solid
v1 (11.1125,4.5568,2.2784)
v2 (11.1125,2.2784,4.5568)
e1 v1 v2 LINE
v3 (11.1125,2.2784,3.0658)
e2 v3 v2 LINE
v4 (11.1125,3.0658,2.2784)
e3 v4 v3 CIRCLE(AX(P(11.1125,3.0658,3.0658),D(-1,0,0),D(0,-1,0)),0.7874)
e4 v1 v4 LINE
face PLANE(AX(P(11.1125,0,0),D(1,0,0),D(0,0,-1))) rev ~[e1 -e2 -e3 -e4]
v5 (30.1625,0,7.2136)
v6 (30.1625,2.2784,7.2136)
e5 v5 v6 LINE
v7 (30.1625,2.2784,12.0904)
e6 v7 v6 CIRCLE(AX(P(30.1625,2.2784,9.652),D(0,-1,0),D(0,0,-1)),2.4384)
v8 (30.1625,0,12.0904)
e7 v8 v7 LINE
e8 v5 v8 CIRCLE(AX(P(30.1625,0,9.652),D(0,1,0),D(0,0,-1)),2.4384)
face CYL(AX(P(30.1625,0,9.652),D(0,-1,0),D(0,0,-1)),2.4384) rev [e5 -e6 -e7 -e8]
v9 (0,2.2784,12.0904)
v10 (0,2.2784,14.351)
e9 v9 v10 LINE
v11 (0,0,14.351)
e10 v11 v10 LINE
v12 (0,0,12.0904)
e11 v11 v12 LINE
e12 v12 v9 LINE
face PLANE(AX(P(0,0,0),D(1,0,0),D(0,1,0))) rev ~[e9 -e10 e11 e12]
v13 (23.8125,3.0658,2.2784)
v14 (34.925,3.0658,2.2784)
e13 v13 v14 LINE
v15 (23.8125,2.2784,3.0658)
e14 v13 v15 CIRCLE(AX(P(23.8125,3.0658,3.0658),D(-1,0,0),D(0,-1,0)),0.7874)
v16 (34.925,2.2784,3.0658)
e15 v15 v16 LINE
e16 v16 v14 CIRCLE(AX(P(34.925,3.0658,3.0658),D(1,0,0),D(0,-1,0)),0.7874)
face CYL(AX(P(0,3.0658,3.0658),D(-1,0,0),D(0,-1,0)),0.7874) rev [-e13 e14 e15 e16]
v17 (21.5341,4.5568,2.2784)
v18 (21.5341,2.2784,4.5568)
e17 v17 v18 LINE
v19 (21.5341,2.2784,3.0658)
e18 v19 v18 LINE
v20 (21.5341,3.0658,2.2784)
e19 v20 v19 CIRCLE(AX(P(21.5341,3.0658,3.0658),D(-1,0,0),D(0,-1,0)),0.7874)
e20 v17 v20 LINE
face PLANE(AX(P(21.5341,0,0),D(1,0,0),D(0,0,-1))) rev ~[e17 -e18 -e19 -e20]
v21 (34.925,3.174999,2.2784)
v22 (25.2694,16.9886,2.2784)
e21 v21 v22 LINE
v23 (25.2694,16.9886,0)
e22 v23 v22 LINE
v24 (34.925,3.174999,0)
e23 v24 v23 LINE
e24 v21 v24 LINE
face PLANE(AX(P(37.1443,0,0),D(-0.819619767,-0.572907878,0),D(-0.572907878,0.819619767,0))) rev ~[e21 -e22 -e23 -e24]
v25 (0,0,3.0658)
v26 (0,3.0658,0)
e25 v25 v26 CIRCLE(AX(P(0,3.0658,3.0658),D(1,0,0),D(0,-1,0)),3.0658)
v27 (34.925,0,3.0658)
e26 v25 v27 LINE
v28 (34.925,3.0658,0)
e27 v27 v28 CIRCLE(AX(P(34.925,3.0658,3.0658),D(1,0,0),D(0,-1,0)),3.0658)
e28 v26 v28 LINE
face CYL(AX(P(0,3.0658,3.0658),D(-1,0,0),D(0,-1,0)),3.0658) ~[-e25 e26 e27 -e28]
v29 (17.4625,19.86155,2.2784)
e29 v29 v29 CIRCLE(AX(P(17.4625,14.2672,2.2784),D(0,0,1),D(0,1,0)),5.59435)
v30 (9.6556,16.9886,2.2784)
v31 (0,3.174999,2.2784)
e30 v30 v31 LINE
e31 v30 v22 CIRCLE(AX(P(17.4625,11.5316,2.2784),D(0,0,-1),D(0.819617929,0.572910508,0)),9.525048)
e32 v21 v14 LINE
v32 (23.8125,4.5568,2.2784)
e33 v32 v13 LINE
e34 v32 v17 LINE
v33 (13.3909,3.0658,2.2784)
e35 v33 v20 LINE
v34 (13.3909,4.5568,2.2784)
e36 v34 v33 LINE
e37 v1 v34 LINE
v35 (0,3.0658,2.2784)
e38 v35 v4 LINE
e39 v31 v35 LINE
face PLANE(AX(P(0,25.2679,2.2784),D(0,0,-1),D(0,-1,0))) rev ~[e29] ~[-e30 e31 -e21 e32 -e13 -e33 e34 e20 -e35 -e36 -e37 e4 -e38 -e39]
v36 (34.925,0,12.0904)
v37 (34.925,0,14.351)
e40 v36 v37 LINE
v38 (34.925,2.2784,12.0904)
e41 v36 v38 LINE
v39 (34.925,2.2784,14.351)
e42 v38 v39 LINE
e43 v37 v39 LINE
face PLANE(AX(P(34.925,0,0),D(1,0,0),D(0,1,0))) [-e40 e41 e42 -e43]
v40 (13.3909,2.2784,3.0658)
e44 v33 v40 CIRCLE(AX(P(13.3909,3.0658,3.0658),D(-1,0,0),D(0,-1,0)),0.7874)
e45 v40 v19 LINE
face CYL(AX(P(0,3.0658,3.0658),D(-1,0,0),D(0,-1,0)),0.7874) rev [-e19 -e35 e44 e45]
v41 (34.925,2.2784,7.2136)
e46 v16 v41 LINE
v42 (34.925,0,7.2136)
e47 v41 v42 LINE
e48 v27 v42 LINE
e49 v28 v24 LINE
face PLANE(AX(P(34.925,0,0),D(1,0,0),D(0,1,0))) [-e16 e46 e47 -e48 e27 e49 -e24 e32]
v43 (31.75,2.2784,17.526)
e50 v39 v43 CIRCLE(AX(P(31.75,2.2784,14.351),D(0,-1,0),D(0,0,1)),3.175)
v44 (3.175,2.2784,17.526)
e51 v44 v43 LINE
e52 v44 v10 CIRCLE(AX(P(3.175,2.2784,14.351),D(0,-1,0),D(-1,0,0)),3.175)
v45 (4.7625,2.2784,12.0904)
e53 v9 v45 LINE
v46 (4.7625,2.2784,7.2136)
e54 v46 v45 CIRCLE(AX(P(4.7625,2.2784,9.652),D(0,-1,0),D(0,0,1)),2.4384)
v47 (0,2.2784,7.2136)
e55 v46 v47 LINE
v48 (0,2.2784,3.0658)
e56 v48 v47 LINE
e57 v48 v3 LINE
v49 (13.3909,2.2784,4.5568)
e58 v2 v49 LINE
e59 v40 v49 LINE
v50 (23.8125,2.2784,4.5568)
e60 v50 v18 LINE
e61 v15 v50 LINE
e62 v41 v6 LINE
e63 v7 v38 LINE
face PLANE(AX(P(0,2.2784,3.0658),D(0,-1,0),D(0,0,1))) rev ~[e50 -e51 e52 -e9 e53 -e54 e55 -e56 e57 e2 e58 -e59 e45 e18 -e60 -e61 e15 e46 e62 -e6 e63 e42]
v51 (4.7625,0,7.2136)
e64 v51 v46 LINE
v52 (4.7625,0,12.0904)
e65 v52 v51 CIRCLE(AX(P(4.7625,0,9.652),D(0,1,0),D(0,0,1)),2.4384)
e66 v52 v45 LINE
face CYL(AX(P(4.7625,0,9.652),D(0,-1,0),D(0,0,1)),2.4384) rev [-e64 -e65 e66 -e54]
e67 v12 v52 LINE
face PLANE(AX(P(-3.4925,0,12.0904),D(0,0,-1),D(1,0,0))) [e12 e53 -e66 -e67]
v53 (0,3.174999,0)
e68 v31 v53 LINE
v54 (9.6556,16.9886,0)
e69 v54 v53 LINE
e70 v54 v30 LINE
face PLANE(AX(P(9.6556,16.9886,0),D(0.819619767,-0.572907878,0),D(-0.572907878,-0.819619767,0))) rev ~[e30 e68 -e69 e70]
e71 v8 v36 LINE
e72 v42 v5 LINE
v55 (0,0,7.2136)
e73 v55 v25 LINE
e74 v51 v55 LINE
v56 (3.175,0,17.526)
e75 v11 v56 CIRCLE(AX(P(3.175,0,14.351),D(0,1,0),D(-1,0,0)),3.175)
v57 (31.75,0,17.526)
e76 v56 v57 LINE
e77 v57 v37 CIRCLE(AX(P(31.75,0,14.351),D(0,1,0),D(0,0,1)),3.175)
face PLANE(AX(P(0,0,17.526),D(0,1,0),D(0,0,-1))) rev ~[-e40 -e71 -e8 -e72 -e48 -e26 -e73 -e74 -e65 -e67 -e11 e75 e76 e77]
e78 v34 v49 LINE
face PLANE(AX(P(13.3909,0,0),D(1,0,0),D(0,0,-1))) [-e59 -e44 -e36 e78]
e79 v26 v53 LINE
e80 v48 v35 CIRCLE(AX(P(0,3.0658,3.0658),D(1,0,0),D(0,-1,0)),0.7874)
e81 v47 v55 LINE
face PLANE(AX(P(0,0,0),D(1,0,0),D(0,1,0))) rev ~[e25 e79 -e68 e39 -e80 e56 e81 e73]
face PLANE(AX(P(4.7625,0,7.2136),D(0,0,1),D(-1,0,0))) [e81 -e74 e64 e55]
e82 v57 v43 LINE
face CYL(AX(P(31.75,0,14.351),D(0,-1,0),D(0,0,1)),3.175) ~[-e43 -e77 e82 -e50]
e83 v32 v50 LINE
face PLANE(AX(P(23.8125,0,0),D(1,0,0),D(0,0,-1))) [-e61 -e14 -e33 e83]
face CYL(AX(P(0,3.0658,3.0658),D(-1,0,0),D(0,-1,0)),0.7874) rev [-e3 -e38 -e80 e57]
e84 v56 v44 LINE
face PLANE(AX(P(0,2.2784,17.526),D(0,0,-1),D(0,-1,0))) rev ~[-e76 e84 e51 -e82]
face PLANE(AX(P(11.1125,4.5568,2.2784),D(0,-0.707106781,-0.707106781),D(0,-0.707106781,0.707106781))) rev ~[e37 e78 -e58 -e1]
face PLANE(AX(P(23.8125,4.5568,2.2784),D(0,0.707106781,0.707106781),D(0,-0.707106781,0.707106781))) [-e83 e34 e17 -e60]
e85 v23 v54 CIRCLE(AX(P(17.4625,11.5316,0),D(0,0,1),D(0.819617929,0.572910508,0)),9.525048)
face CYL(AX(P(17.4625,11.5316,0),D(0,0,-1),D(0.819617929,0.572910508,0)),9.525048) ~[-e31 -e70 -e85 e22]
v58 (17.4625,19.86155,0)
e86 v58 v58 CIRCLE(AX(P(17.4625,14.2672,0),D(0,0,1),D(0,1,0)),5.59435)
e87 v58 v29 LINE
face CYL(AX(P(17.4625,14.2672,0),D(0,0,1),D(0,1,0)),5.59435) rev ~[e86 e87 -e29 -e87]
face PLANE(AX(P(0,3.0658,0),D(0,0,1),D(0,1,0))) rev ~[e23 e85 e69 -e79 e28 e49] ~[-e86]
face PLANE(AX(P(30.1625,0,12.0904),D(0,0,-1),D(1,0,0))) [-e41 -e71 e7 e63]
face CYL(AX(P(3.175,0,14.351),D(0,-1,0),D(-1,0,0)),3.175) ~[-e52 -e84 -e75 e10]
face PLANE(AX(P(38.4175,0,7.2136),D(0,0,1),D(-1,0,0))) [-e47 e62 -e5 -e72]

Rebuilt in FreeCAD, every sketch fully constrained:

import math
import FreeCAD as App
import Part
import Sketcher

V = App.Vector
Q = App.Units.Quantity

doc = App.newDocument("Part")
body = doc.addObject("PartDesign::Body", "Body")

# Sketch on YZ plane
sketch1 = body.newObject("Sketcher::SketchObject", "Sketch")
sketch1.AttachmentSupport = (doc.getObject("YZ_Plane"), [""])
sketch1.MapMode = "FlatFace"
sketch1.addGeometry([
    Part.LineSegment(V(2.2784, 17.526, 0), V(0, 17.526, 0)),  # 0
    Part.LineSegment(V(0, 17.526, 0), V(0, 3.0658, 0)),  # 1
    Part.ArcOfCircle(Part.Circle(V(3.0658, 3.0658, 0), V(0, 0, 1), 3.0658), math.radians(180), math.radians(270)),  # 2
    Part.LineSegment(V(3.0658, 0, 0), V(25.2679, 0, 0)),  # 3
    Part.LineSegment(V(25.2679, 0, 0), V(25.2679, 2.2784, 0)),  # 4
    Part.LineSegment(V(25.2679, 2.2784, 0), V(3.0658, 2.2784, 0)),  # 5
    Part.ArcOfCircle(Part.Circle(V(3.0658, 3.0658, 0), V(0, 0, 1), 0.7874), math.radians(180), math.radians(270)),  # 6
    Part.LineSegment(V(2.2784, 3.0658, 0), V(2.2784, 17.526, 0)),  # 7
], False)
sketch1.addConstraint([
    Sketcher.Constraint("Coincident", 0, 2, 1, 1),
    Sketcher.Constraint("Tangent", 1, 2, 2, 1),
    Sketcher.Constraint("Tangent", 2, 2, 3, 1),
    Sketcher.Constraint("Coincident", 3, 2, 4, 1),
    Sketcher.Constraint("Coincident", 4, 2, 5, 1),
    Sketcher.Constraint("Tangent", 5, 2, 6, 2),
    Sketcher.Constraint("Tangent", 6, 1, 7, 1),
    Sketcher.Constraint("Coincident", 7, 2, 0, 1),
    Sketcher.Constraint("Horizontal", 0),
    Sketcher.Constraint("Vertical", 1),
    Sketcher.Constraint("Horizontal", 3),
    Sketcher.Constraint("Vertical", 4),
    Sketcher.Constraint("Horizontal", 5),
    Sketcher.Constraint("Vertical", 7),
    Sketcher.Constraint("Coincident", 6, 3, 2, 3),
    Sketcher.Constraint("PointOnObject", 0, 2, -2),
    Sketcher.Constraint("PointOnObject", 2, 2, -1),
    Sketcher.Constraint("Radius", 6, Q("0.031 in")),
    Sketcher.Constraint("Radius", 2, Q("0.1207 in")),
    Sketcher.Constraint("DistanceY", -1, 1, 0, 2, Q("0.69 in")),
    Sketcher.Constraint("DistanceX", 3, 1, 3, 2, Q("0.8741 in")),
])
pad1 = body.newObject("PartDesign::Pad", "Pad")
pad1.Profile = sketch1
pad1.Length = Q("1.375 in")

# Sketch on XY plane
sketch2 = body.newObject("Sketcher::SketchObject", "Sketch001")
sketch2.AttachmentSupport = (doc.getObject("XY_Plane"), [""])
sketch2.MapMode = "FlatFace"
sketch2.addGeometry([
    Part.LineSegment(V(-6.985, 33.6906, 0), V(-6.985, -2.1057, 0)),  # 0
    Part.LineSegment(V(-6.985, -2.1057, 0), V(41.91, -2.1057, 0)),  # 1
    Part.LineSegment(V(41.91, -2.1057, 0), V(41.91, 33.6906, 0)),  # 2
    Part.LineSegment(V(41.91, 33.6906, 0), V(-6.985, 33.6906, 0)),  # 3
    Part.LineSegment(V(37.1443, 0, 0), V(-2.2193, 0, 0)),  # 4
    Part.LineSegment(V(-2.2193, 0, 0), V(9.6556, 16.9886, 0)),  # 5
    Part.ArcOfCircle(Part.Circle(V(17.4625, 11.5316, 0), V(0, 0, 1), 9.525048), math.radians(34.953435), math.radians(145.046565)),  # 6
    Part.LineSegment(V(25.2694, 16.9886, 0), V(37.1443, 0, 0)),  # 7
], False)
sketch2.addConstraint([
    Sketcher.Constraint("Coincident", 0, 2, 1, 1),
    Sketcher.Constraint("Coincident", 1, 2, 2, 1),
    Sketcher.Constraint("Coincident", 2, 2, 3, 1),
    Sketcher.Constraint("Coincident", 3, 2, 0, 1),
    Sketcher.Constraint("Coincident", 4, 2, 5, 1),
    Sketcher.Constraint("Tangent", 5, 2, 6, 2),
    Sketcher.Constraint("Tangent", 6, 1, 7, 1),
    Sketcher.Constraint("Coincident", 7, 2, 4, 1),
    Sketcher.Constraint("Vertical", 0),
    Sketcher.Constraint("Horizontal", 1),
    Sketcher.Constraint("Vertical", 2),
    Sketcher.Constraint("Horizontal", 3),
    Sketcher.Constraint("Horizontal", 4),
    Sketcher.Constraint("PointOnObject", 4, 2, -1),
    Sketcher.Constraint("Horizontal", 5, 2, 6, 1),
    Sketcher.Constraint("Radius", 6, Q("0.375 in")),
    Sketcher.Constraint("DistanceX", 1, 1, 1, 2, Q("1.925 in")),
    Sketcher.Constraint("DistanceX", -1, 1, 1, 2, Q("1.65 in")),
    Sketcher.Constraint("DistanceY", 0, 2, 0, 1, Q("1.4093 in")),
    Sketcher.Constraint("DistanceX", -1, 1, 6, 3, Q("0.6875 in")),
    Sketcher.Constraint("DistanceY", -1, 1, 6, 3, Q("0.454 in")),
    Sketcher.Constraint("DistanceX", 4, 2, 4, 1, Q("39.3636 mm")),
    Sketcher.Constraint("DistanceY", 0, 2, -1, 1, Q("0.0829 in")),
])
pocket1 = body.newObject("PartDesign::Pocket", "Pocket")
pocket1.Profile = sketch2
pocket1.Length = 3.4176
pocket1.Reversed = True

# Sketch on XY plane
sketch3 = body.newObject("Sketcher::SketchObject", "Sketch002")
sketch3.AttachmentSupport = (doc.getObject("XY_Plane"), [""])
sketch3.MapMode = "FlatFace"
sketch3.addGeometry(Part.Circle(V(17.4625, 14.2672, 0), V(0, 0, 1), 5.59435), False)
sketch3.addConstraint([
    Sketcher.Constraint("Diameter", 0, Q("0.4405 in")),
    Sketcher.Constraint("DistanceX", -1, 1, 0, 3, Q("0.6875 in")),
    Sketcher.Constraint("DistanceY", -1, 1, 0, 3, Q("0.5617 in")),
])
doc.recompute()
hole = body.newObject("PartDesign::Hole", "Hole")
hole.Profile = sketch3
hole.ThreadType = "None"
hole.Diameter = Q("0.4405 in")
hole.DepthType = "Dimension"
hole.Depth = 3.4176
hole.DrillPoint = "Flat"
hole.Reversed = True

# Sketch on XZ plane
sketch4 = body.newObject("Sketcher::SketchObject", "Sketch003")
sketch4.AttachmentSupport = (doc.getObject("XZ_Plane"), [""])
sketch4.MapMode = "FlatFace"
sketch4.addGeometry([
    Part.LineSegment(V(0, 14.351, 0), V(-17.4625, 14.351, 0)),  # 0
    Part.LineSegment(V(-17.4625, 14.351, 0), V(-17.4625, 22.352, 0)),  # 1
    Part.LineSegment(V(-17.4625, 22.352, 0), V(3.175, 22.352, 0)),  # 2
    Part.LineSegment(V(3.175, 22.352, 0), V(3.175, 17.526, 0)),  # 3
    Part.ArcOfCircle(Part.Circle(V(3.175, 14.351, 0), V(0, 0, 1), 3.175), math.radians(90), math.radians(180)),  # 4
], False)
sketch4.addConstraint([
    Sketcher.Constraint("Coincident", 0, 2, 1, 1),
    Sketcher.Constraint("Coincident", 1, 2, 2, 1),
    Sketcher.Constraint("Coincident", 2, 2, 3, 1),
    Sketcher.Constraint("Coincident", 3, 2, 4, 1),
    Sketcher.Constraint("Coincident", 4, 2, 0, 1),
    Sketcher.Constraint("Horizontal", 0),
    Sketcher.Constraint("Vertical", 1),
    Sketcher.Constraint("Horizontal", 2),
    Sketcher.Constraint("Vertical", 3),
    Sketcher.Constraint("PointOnObject", 4, 2, -2),
    Sketcher.Constraint("Horizontal", 4, 3, 0, 2),
    Sketcher.Constraint("Vertical", 4, 3, 2, 2),
    Sketcher.Constraint("Radius", 4, Q("0.125 in")),
    Sketcher.Constraint("DistanceY", 3, 2, 3, 1, Q("0.19 in")),
    Sketcher.Constraint("DistanceX", 0, 2, 0, 1, Q("0.6875 in")),
    Sketcher.Constraint("DistanceY", -1, 1, 1, 2, Q("0.88 in")),
])
pocket2 = body.newObject("PartDesign::Pocket", "Pocket001")
pocket2.Profile = sketch4
pocket2.Length = 3.4176

# Sketch on XZ plane
sketch5 = body.newObject("Sketcher::SketchObject", "Sketch004")
sketch5.AttachmentSupport = (doc.getObject("XZ_Plane"), [""])
sketch5.MapMode = "FlatFace"
sketch5.addGeometry([
    Part.LineSegment(V(31.75, 17.526, 0), V(31.75, 22.352, 0)),  # 0
    Part.LineSegment(V(31.75, 22.352, 0), V(52.3875, 22.352, 0)),  # 1
    Part.LineSegment(V(52.3875, 22.352, 0), V(52.3875, 14.351, 0)),  # 2
    Part.LineSegment(V(52.3875, 14.351, 0), V(34.925, 14.351, 0)),  # 3
    Part.ArcOfCircle(Part.Circle(V(31.75, 14.351, 0), V(0, 0, 1), 3.175), math.radians(0), math.radians(90)),  # 4
], False)
sketch5.addConstraint([
    Sketcher.Constraint("Coincident", 0, 2, 1, 1),
    Sketcher.Constraint("Coincident", 1, 2, 2, 1),
    Sketcher.Constraint("Coincident", 2, 2, 3, 1),
    Sketcher.Constraint("Coincident", 3, 2, 4, 1),
    Sketcher.Constraint("Coincident", 4, 2, 0, 1),
    Sketcher.Constraint("Vertical", 0),
    Sketcher.Constraint("Horizontal", 1),
    Sketcher.Constraint("Vertical", 2),
    Sketcher.Constraint("Horizontal", 3),
    Sketcher.Constraint("Horizontal", 4, 3, 2, 2),
    Sketcher.Constraint("Vertical", 4, 3, 0, 2),
    Sketcher.Constraint("Radius", 4, Q("0.125 in")),
    Sketcher.Constraint("DistanceY", 0, 1, 0, 2, Q("0.19 in")),
    Sketcher.Constraint("DistanceX", 1, 1, 1, 2, Q("0.8125 in")),
    Sketcher.Constraint("DistanceX", -1, 1, 4, 3, Q("1.25 in")),
    Sketcher.Constraint("DistanceY", -1, 1, 0, 2, Q("0.88 in")),
])
pocket3 = body.newObject("PartDesign::Pocket", "Pocket002")
pocket3.Profile = sketch5
pocket3.Length = 3.4176

# Sketch on XZ plane
sketch6 = body.newObject("Sketcher::SketchObject", "Sketch005")
sketch6.AttachmentSupport = (doc.getObject("XZ_Plane"), [""])
sketch6.MapMode = "FlatFace"
sketch6.addGeometry([
    Part.LineSegment(V(-3.4925, 7.2136, 0), V(-3.4925, 12.0904, 0)),
    Part.LineSegment(V(-3.4925, 12.0904, 0), V(4.7625, 12.0904, 0)),
    Part.ArcOfCircle(Part.Circle(V(4.7625, 9.652, 0), V(0, 0, 1), 2.4384), math.radians(-90), math.radians(90)),
    Part.LineSegment(V(4.7625, 7.2136, 0), V(-3.4925, 7.2136, 0)),
], False)
sketch6.addConstraint([
    Sketcher.Constraint("Coincident", 0, 2, 1, 1),
    Sketcher.Constraint("Tangent", 1, 2, 2, 2),
    Sketcher.Constraint("Tangent", 2, 1, 3, 1),
    Sketcher.Constraint("Coincident", 3, 2, 0, 1),
    Sketcher.Constraint("Vertical", 0),
    Sketcher.Constraint("Horizontal", 1),
    Sketcher.Constraint("Horizontal", 3),
    Sketcher.Constraint("Radius", 2, Q("0.096 in")),
    Sketcher.Constraint("DistanceX", 1, 1, 1, 2, Q("0.325 in")),
    Sketcher.Constraint("DistanceY", -1, 1, 2, 3, Q("0.38 in")),
    Sketcher.Constraint("DistanceX", -1, 1, 2, 3, Q("0.1875 in")),
])
pocket4 = body.newObject("PartDesign::Pocket", "Pocket003")
pocket4.Profile = sketch6
pocket4.Length = 3.4176

# Sketch on XZ plane
sketch7 = body.newObject("Sketcher::SketchObject", "Sketch006")
sketch7.AttachmentSupport = (doc.getObject("XZ_Plane"), [""])
sketch7.MapMode = "FlatFace"
sketch7.addGeometry([
    Part.LineSegment(V(38.4175, 7.2136, 0), V(30.1625, 7.2136, 0)),
    Part.ArcOfCircle(Part.Circle(V(30.1625, 9.652, 0), V(0, 0, 1), 2.4384), math.radians(90), math.radians(270)),
    Part.LineSegment(V(30.1625, 12.0904, 0), V(38.4175, 12.0904, 0)),
    Part.LineSegment(V(38.4175, 12.0904, 0), V(38.4175, 7.2136, 0)),
], False)
sketch7.addConstraint([
    Sketcher.Constraint("Tangent", 0, 2, 1, 2),
    Sketcher.Constraint("Tangent", 1, 1, 2, 1),
    Sketcher.Constraint("Coincident", 2, 2, 3, 1),
    Sketcher.Constraint("Coincident", 3, 2, 0, 1),
    Sketcher.Constraint("Horizontal", 0),
    Sketcher.Constraint("Horizontal", 2),
    Sketcher.Constraint("Vertical", 3),
    Sketcher.Constraint("Radius", 1, Q("0.096 in")),
    Sketcher.Constraint("DistanceX", 0, 2, 0, 1, Q("0.325 in")),
    Sketcher.Constraint("DistanceY", -1, 1, 1, 3, Q("0.38 in")),
    Sketcher.Constraint("DistanceX", -1, 1, 1, 3, Q("1.1875 in")),
])
pocket5 = body.newObject("PartDesign::Pocket", "Pocket004")
pocket5.Profile = sketch7
pocket5.Length = 3.4176

# Sketch on YZ plane
sketch8 = body.newObject("Sketcher::SketchObject", "Sketch007")
sketch8.AttachmentSupport = (doc.getObject("YZ_Plane"), [""])
sketch8.MapMode = "FlatFace"
sketch8.AttachmentOffset = App.Placement(V(0, 0, 0.4375 * 25.4), App.Rotation())
sketch8.addGeometry([
    Part.LineSegment(V(2.2784, 4.5568, 0), V(1.8456, 4.5568, 0)),
    Part.ArcOfCircle(Part.Circle(V(3.0658, 3.0658, 0), V(0, 0, 1), 1.926647), math.radians(129.296103), math.radians(320.703897)),
    Part.LineSegment(V(4.5568, 1.8456, 0), V(4.5568, 2.2784, 0)),
    Part.LineSegment(V(4.5568, 2.2784, 0), V(2.2784, 4.5568, 0)),
], False)
sketch8.addConstraint([
    Sketcher.Constraint("Coincident", 0, 2, 1, 1),
    Sketcher.Constraint("Coincident", 1, 2, 2, 1),
    Sketcher.Constraint("Coincident", 2, 2, 3, 1),
    Sketcher.Constraint("Coincident", 3, 2, 0, 1),
    Sketcher.Constraint("Horizontal", 0),
    Sketcher.Constraint("Vertical", 2),
    Sketcher.Constraint("Equal", 0, 2),
    Sketcher.Constraint("Angle", 3, Q("135 deg")),
    Sketcher.Constraint("Radius", 1, Q("1.9266 mm")),
    Sketcher.Constraint("DistanceY", 2, 2, 1, 3, Q("0.031 in")),
    Sketcher.Constraint("DistanceX", 0, 2, 0, 1, Q("0.4328 mm")),
    Sketcher.Constraint("DistanceX", -1, 1, 1, 3, Q("0.1207 in")),
    Sketcher.Constraint("DistanceY", -1, 1, 1, 3, Q("0.1207 in")),
])
pad2 = body.newObject("PartDesign::Pad", "Pad001")
pad2.Profile = sketch8
pad2.Length = Q("0.0897008 in")

# Sketch on YZ plane
sketch9 = body.newObject("Sketcher::SketchObject", "Sketch008")
sketch9.AttachmentSupport = (doc.getObject("YZ_Plane"), [""])
sketch9.MapMode = "FlatFace"
sketch9.AttachmentOffset = App.Placement(V(0, 0, 0.9375 * 25.4), App.Rotation())
sketch9.addGeometry([
    Part.LineSegment(V(2.2784, 4.5568, 0), V(1.8456, 4.5568, 0)),
    Part.ArcOfCircle(Part.Circle(V(3.0658, 3.0658, 0), V(0, 0, 1), 1.926647), math.radians(129.296103), math.radians(320.703897)),
    Part.LineSegment(V(4.5568, 1.8456, 0), V(4.5568, 2.2784, 0)),
    Part.LineSegment(V(4.5568, 2.2784, 0), V(2.2784, 4.5568, 0)),
], False)
sketch9.addConstraint([
    Sketcher.Constraint("Coincident", 0, 2, 1, 1),
    Sketcher.Constraint("Coincident", 1, 2, 2, 1),
    Sketcher.Constraint("Coincident", 2, 2, 3, 1),
    Sketcher.Constraint("Coincident", 3, 2, 0, 1),
    Sketcher.Constraint("Horizontal", 0),
    Sketcher.Constraint("Vertical", 2),
    Sketcher.Constraint("Equal", 0, 2),
    Sketcher.Constraint("Angle", 3, Q("135 deg")),
    Sketcher.Constraint("Radius", 1, Q("1.9266 mm")),
    Sketcher.Constraint("DistanceY", 2, 2, 1, 3, Q("0.031 in")),
    Sketcher.Constraint("DistanceX", 0, 2, 0, 1, Q("0.4328 mm")),
    Sketcher.Constraint("DistanceX", -1, 1, 1, 3, Q("0.1207 in")),
    Sketcher.Constraint("DistanceY", -1, 1, 1, 3, Q("0.1207 in")),
])
pad3 = body.newObject("PartDesign::Pad", "Pad002")
pad3.Profile = sketch9
pad3.Length = Q("0.0897008 in")
pad3.Reversed = True

doc.recompute()
